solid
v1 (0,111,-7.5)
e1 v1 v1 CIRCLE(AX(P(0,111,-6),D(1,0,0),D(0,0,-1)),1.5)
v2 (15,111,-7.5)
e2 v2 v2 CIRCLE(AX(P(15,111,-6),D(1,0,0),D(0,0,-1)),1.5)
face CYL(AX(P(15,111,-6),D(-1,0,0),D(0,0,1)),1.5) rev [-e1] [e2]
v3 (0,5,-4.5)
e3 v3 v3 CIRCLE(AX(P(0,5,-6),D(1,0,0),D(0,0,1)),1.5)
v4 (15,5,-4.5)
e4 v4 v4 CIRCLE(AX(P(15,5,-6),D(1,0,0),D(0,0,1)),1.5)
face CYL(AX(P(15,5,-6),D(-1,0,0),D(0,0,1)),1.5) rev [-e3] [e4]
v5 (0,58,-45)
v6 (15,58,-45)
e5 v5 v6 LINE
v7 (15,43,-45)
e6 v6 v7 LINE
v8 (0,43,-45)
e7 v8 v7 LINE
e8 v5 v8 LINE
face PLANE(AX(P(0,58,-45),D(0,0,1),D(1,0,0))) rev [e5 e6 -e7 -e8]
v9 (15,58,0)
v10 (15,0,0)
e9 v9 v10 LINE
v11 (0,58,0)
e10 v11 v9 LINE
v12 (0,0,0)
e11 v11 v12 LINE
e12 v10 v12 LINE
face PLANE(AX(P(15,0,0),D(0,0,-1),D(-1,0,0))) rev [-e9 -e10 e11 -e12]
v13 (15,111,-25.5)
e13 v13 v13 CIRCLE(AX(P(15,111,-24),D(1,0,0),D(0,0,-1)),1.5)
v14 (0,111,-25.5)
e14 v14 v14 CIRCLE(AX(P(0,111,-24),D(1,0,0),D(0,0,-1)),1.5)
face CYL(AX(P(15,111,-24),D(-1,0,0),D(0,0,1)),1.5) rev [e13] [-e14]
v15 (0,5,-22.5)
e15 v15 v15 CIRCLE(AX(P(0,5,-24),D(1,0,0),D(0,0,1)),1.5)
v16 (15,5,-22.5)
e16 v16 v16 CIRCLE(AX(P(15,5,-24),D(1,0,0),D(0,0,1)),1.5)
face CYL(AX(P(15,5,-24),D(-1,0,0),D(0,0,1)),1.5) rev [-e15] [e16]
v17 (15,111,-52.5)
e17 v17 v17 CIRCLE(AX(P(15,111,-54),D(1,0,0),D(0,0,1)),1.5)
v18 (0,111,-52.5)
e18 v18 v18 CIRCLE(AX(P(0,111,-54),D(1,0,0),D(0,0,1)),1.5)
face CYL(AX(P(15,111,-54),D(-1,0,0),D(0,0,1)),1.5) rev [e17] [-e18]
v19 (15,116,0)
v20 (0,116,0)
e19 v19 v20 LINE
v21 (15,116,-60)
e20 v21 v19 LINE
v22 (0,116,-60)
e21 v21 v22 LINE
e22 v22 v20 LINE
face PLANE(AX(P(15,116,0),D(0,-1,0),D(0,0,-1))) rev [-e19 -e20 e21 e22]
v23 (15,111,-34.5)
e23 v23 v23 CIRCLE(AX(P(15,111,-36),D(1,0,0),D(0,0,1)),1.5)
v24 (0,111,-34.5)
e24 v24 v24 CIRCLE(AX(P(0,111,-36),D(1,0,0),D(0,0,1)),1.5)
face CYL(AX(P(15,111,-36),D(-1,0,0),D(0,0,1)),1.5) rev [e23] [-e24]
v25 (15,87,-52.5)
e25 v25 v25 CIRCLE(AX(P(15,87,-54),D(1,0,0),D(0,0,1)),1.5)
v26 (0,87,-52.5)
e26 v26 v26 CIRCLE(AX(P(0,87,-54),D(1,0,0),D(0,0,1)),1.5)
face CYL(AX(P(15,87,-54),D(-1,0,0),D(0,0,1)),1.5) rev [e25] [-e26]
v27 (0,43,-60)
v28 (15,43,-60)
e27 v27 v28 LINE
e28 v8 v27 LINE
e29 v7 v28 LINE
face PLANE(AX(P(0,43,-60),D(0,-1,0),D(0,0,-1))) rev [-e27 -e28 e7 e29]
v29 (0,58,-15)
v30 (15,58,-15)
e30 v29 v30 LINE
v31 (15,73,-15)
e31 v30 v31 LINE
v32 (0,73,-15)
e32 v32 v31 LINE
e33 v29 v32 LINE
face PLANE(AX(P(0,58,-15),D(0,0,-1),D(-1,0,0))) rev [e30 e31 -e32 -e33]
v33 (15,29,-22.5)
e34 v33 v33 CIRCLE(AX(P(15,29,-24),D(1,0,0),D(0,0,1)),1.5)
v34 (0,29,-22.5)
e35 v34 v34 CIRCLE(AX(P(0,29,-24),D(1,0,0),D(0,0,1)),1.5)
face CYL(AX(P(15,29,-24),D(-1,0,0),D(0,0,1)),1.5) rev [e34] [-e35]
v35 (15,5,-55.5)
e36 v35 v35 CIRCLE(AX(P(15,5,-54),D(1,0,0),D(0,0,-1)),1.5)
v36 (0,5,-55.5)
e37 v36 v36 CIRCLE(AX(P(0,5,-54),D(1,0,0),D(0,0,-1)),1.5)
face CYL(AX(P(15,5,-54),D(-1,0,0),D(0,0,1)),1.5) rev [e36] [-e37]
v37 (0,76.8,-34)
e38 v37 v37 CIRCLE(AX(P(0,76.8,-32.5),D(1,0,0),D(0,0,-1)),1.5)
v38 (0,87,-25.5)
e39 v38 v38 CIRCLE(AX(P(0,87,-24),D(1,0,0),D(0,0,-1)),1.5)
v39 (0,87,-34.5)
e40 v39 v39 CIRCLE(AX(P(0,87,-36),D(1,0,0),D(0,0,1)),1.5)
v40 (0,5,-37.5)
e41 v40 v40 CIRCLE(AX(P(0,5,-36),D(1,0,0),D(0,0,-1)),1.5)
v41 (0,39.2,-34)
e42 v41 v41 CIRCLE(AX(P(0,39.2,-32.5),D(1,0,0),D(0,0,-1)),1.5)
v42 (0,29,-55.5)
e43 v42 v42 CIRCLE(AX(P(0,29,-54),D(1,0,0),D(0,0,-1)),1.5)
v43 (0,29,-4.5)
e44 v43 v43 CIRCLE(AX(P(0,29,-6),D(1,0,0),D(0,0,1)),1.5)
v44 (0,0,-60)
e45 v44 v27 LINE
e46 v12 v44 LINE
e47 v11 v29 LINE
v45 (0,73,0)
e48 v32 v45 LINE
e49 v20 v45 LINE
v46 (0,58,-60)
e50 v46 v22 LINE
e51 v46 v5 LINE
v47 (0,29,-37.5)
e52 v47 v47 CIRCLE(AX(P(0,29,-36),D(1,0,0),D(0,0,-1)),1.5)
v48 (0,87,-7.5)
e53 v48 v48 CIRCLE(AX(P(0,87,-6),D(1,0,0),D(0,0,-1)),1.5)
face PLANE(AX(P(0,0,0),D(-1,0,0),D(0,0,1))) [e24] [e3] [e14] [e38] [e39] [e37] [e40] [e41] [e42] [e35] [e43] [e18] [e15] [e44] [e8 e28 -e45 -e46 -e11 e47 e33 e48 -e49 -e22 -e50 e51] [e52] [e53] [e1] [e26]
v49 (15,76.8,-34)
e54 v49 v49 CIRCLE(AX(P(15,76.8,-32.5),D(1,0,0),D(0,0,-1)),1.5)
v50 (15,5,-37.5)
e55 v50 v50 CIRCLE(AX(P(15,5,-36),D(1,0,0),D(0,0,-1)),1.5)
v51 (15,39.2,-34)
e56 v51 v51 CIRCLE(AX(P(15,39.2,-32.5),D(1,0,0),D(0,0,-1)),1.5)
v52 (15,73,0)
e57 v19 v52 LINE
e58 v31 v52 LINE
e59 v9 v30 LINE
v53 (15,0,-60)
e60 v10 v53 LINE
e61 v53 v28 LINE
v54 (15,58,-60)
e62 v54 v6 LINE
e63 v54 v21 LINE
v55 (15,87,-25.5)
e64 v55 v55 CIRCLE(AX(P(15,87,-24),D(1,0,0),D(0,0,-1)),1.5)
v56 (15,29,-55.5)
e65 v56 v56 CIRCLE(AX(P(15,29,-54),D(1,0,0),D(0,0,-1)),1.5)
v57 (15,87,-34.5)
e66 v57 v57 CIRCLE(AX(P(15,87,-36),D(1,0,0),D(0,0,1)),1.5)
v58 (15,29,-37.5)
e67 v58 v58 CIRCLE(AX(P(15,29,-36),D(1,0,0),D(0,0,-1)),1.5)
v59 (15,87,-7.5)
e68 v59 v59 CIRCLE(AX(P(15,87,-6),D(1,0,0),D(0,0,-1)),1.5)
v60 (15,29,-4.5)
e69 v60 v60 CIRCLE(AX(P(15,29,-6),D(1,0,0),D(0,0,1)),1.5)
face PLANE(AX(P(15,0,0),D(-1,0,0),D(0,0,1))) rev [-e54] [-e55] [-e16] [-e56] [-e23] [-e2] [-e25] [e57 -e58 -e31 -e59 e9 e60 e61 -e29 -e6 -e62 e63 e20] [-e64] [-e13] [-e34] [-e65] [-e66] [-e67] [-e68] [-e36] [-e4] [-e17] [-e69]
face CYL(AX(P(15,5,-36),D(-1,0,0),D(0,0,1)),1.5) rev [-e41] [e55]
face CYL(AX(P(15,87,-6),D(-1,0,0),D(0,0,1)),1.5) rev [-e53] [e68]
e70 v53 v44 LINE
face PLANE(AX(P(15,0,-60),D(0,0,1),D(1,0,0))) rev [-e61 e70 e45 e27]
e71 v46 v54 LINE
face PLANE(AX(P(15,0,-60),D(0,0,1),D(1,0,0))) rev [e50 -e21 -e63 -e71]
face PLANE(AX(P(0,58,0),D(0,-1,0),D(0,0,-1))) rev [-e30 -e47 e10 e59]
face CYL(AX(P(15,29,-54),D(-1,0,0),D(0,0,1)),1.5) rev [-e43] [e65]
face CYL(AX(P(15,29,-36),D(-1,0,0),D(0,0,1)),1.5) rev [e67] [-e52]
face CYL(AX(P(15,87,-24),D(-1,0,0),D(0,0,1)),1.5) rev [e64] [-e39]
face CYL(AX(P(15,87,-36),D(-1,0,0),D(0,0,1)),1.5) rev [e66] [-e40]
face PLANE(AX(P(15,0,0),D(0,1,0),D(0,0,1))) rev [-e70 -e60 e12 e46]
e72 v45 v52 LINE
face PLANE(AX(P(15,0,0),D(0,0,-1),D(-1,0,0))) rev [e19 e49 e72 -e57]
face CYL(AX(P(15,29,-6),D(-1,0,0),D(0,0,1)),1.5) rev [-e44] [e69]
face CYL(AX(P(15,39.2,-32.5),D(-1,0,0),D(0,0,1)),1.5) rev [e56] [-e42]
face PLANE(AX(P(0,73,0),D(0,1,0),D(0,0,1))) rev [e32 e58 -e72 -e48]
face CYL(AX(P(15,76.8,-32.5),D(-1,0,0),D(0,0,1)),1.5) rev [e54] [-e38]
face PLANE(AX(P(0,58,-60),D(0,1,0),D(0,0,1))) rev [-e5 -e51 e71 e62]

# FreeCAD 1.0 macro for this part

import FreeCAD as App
import Part
import Sketcher

V = App.Vector


def add_polygon(sketch, points):
    """Adds a closed chain of lines whose ends are joined by coincident constraints."""
    first, n = sketch.GeometryCount, len(points)
    for a, b in zip(points, points[1:] + points[:1]):
        sketch.addGeometry(Part.LineSegment(App.Vector(*a, 0), App.Vector(*b, 0)), False)
    for i in range(n):
        sketch.addConstraint(Sketcher.Constraint("Coincident", first + i, 2, first + (i + 1) % n, 1))

doc = App.newDocument("Part")
params = doc.addObject("Spreadsheet::Sheet", "Params")
for row, (alias, value) in enumerate([
    ("sketch1_diameter", "3 mm"),
    ("sketch1_width", "116 mm"),
    ("sketch1_height", "60 mm"),
    ("pad1_length", "15 mm"),
    ("sketch2_width", "15 mm"),
], start=1):
    params.set(f"A{row}", alias)
    params.set(f"B{row}", "=" + value)
    params.setAlias(f"B{row}", alias)

body = doc.addObject("PartDesign::Body", "Body")

sketch1 = body.newObject("Sketcher::SketchObject", "Sketch")
sketch1.AttachmentSupport = (doc.getObject("YZ_Plane"), [""])
sketch1.MapMode = "FlatFace"
add_polygon(sketch1, [(116, 0), (0, 0), (0, -60), (116, -60)])
sketch1.addGeometry(Part.Circle(V(5, -6, 0), V(0, 0, 1), 1.5), False)
sketch1.addGeometry(Part.Circle(V(29, -6, 0), V(0, 0, 1), 1.5), False)
sketch1.addGeometry(Part.Circle(V(5, -24, 0), V(0, 0, 1), 1.5), False)
sketch1.addGeometry(Part.Circle(V(29, -24, 0), V(0, 0, 1), 1.5), False)
sketch1.addGeometry(Part.Circle(V(5, -36, 0), V(0, 0, 1), 1.5), False)
sketch1.addGeometry(Part.Circle(V(29, -36, 0), V(0, 0, 1), 1.5), False)
sketch1.addGeometry(Part.Circle(V(5, -54, 0), V(0, 0, 1), 1.5), False)
sketch1.addGeometry(Part.Circle(V(29, -54, 0), V(0, 0, 1), 1.5), False)
sketch1.addGeometry(Part.Circle(V(39.2, -32.5, 0), V(0, 0, 1), 1.5), False)
sketch1.addGeometry(Part.Circle(V(87, -6, 0), V(0, 0, 1), 1.5), False)
sketch1.addGeometry(Part.Circle(V(111, -6, 0), V(0, 0, 1), 1.5), False)
sketch1.addGeometry(Part.Circle(V(87, -24, 0), V(0, 0, 1), 1.5), False)
sketch1.addGeometry(Part.Circle(V(111, -24, 0), V(0, 0, 1), 1.5), False)
sketch1.addGeometry(Part.Circle(V(76.8, -32.5, 0), V(0, 0, 1), 1.5), False)
sketch1.addGeometry(Part.Circle(V(87, -36, 0), V(0, 0, 1), 1.5), False)
sketch1.addGeometry(Part.Circle(V(111, -36, 0), V(0, 0, 1), 1.5), False)
sketch1.addGeometry(Part.Circle(V(87, -54, 0), V(0, 0, 1), 1.5), False)
sketch1.addGeometry(Part.Circle(V(111, -54, 0), V(0, 0, 1), 1.5), False)
sketch1.addConstraint(Sketcher.Constraint("Horizontal", 0))
sketch1.addConstraint(Sketcher.Constraint("Vertical", 1))
sketch1.addConstraint(Sketcher.Constraint("Horizontal", 2))
sketch1.addConstraint(Sketcher.Constraint("Vertical", 3))
sketch1.addConstraint(Sketcher.Constraint("Coincident", 0, 2, -1, 1))
sketch1.addConstraint(Sketcher.Constraint("Equal", 4, 5))
sketch1.addConstraint(Sketcher.Constraint("Equal", 5, 6))
sketch1.addConstraint(Sketcher.Constraint("Equal", 6, 7))
sketch1.addConstraint(Sketcher.Constraint("Equal", 7, 8))
sketch1.addConstraint(Sketcher.Constraint("Equal", 8, 9))
sketch1.addConstraint(Sketcher.Constraint("Equal", 9, 10))
sketch1.addConstraint(Sketcher.Constraint("Equal", 10, 11))
sketch1.addConstraint(Sketcher.Constraint("Equal", 11, 12))
sketch1.addConstraint(Sketcher.Constraint("Equal", 12, 13))
sketch1.addConstraint(Sketcher.Constraint("Equal", 13, 14))
sketch1.addConstraint(Sketcher.Constraint("Equal", 14, 15))
sketch1.addConstraint(Sketcher.Constraint("Equal", 15, 16))
sketch1.addConstraint(Sketcher.Constraint("Equal", 16, 17))
sketch1.addConstraint(Sketcher.Constraint("Equal", 17, 18))
sketch1.addConstraint(Sketcher.Constraint("Equal", 18, 19))
sketch1.addConstraint(Sketcher.Constraint("Equal", 19, 20))
sketch1.addConstraint(Sketcher.Constraint("Equal", 20, 21))
sketch1.addConstraint(Sketcher.Constraint("Horizontal", 4, 3, 5, 3))
sketch1.addConstraint(Sketcher.Constraint("Horizontal", 6, 3, 7, 3))
sketch1.addConstraint(Sketcher.Constraint("Horizontal", 8, 3, 9, 3))
sketch1.addConstraint(Sketcher.Constraint("Horizontal", 10, 3, 11, 3))
sketch1.addConstraint(Sketcher.Constraint("Horizontal", 5, 3, 13, 3))
sketch1.addConstraint(Sketcher.Constraint("Horizontal", 13, 3, 14, 3))
sketch1.addConstraint(Sketcher.Constraint("Horizontal", 7, 3, 15, 3))
sketch1.addConstraint(Sketcher.Constraint("Horizontal", 15, 3, 16, 3))
sketch1.addConstraint(Sketcher.Constraint("Horizontal", 12, 3, 17, 3))
sketch1.addConstraint(Sketcher.Constraint("Horizontal", 9, 3, 18, 3))
sketch1.addConstraint(Sketcher.Constraint("Horizontal", 18, 3, 19, 3))
sketch1.addConstraint(Sketcher.Constraint("Horizontal", 11, 3, 20, 3))
sketch1.addConstraint(Sketcher.Constraint("Horizontal", 20, 3, 21, 3))
sketch1.addConstraint(Sketcher.Constraint("Vertical", 4, 3, 6, 3))
sketch1.addConstraint(Sketcher.Constraint("Vertical", 5, 3, 7, 3))
sketch1.addConstraint(Sketcher.Constraint("Vertical", 6, 3, 8, 3))
sketch1.addConstraint(Sketcher.Constraint("Vertical", 7, 3, 9, 3))
sketch1.addConstraint(Sketcher.Constraint("Vertical", 8, 3, 10, 3))
sketch1.addConstraint(Sketcher.Constraint("Vertical", 9, 3, 11, 3))
sketch1.addConstraint(Sketcher.Constraint("Vertical", 13, 3, 15, 3))
sketch1.addConstraint(Sketcher.Constraint("Vertical", 14, 3, 16, 3))
sketch1.addConstraint(Sketcher.Constraint("Vertical", 15, 3, 18, 3))
sketch1.addConstraint(Sketcher.Constraint("Vertical", 16, 3, 19, 3))
sketch1.addConstraint(Sketcher.Constraint("Vertical", 18, 3, 20, 3))
sketch1.addConstraint(Sketcher.Constraint("Vertical", 19, 3, 21, 3))
sketch1.addConstraint(Sketcher.Constraint("Diameter", 4, 3.0))
sketch1.addConstraint(Sketcher.Constraint("DistanceX", 0, 2, 0, 1, 116.0))
sketch1.addConstraint(Sketcher.Constraint("DistanceY", 1, 2, 1, 1, 60.0))
sketch1.addConstraint(Sketcher.Constraint("DistanceX", -1, 1, 4, 3, 5.0))
sketch1.addConstraint(Sketcher.Constraint("DistanceY", 4, 3, -1, 1, 6.0))
sketch1.addConstraint(Sketcher.Constraint("DistanceX", -1, 1, 5, 3, 29.0))
sketch1.addConstraint(Sketcher.Constraint("DistanceY", 6, 3, -1, 1, 24.0))
sketch1.addConstraint(Sketcher.Constraint("DistanceY", 8, 3, -1, 1, 36.0))
sketch1.addConstraint(Sketcher.Constraint("DistanceY", 10, 3, -1, 1, 54.0))
sketch1.addConstraint(Sketcher.Constraint("DistanceX", -1, 1, 13, 3, 87.0))
sketch1.addConstraint(Sketcher.Constraint("DistanceX", -1, 1, 14, 3, 111.0))
sketch1.addConstraint(Sketcher.Constraint("DistanceX", -1, 1, 12, 3, 39.2))
sketch1.addConstraint(Sketcher.Constraint("DistanceY", 12, 3, -1, 1, 32.5))
sketch1.addConstraint(Sketcher.Constraint("DistanceX", -1, 1, 17, 3, 76.8))
sketch1.setExpression("Constraints[51]", "Params.sketch1_diameter")
sketch1.setExpression("Constraints[52]", "Params.sketch1_width")
sketch1.setExpression("Constraints[53]", "Params.sketch1_height")
pad1 = body.newObject("PartDesign::Pad", "Pad")
pad1.Profile = sketch1
pad1.setExpression("Length", "Params.pad1_length")

sketch2 = body.newObject("Sketcher::SketchObject", "Sketch001")
sketch2.AttachmentSupport = (doc.getObject("YZ_Plane"), [""])
sketch2.MapMode = "FlatFace"
sketch2.AttachmentOffset = App.Placement(V(0, 0, 15), App.Rotation())
add_polygon(sketch2, [(73, 0), (58, 0), (58, -15), (73, -15)])
add_polygon(sketch2, [(58, -45), (43, -45), (43, -60), (58, -60)])
sketch2.addConstraint(Sketcher.Constraint("Horizontal", 0))
sketch2.addConstraint(Sketcher.Constraint("Vertical", 1))
sketch2.addConstraint(Sketcher.Constraint("Horizontal", 2))
sketch2.addConstraint(Sketcher.Constraint("Vertical", 3))
sketch2.addConstraint(Sketcher.Constraint("Horizontal", 4))
sketch2.addConstraint(Sketcher.Constraint("Vertical", 5))
sketch2.addConstraint(Sketcher.Constraint("Horizontal", 6))
sketch2.addConstraint(Sketcher.Constraint("Vertical", 7))
sketch2.addConstraint(Sketcher.Constraint("PointOnObject", 0, 2, -1))
sketch2.addConstraint(Sketcher.Constraint("Vertical", 1, 2, 6, 2))
sketch2.addConstraint(Sketcher.Constraint("Equal", 2, 4))
sketch2.addConstraint(Sketcher.Constraint("Equal", 6, 1))
sketch2.addConstraint(Sketcher.Constraint("Equal", 3, 5))
sketch2.addConstraint(Sketcher.Constraint("DistanceX", 0, 2, 0, 1, 15.0))
sketch2.addConstraint(Sketcher.Constraint("DistanceX", -1, 1, 0, 2, 58.0))
sketch2.addConstraint(Sketcher.Constraint("DistanceY", 4, 2, -1, 1, 45.0))
sketch2.setExpression("Constraints[21]", "Params.sketch2_width")
pocket1 = body.newObject("PartDesign::Pocket", "Pocket")
pocket1.Profile = sketch2
pocket1.Type = "ThroughAll"

doc.recompute()
